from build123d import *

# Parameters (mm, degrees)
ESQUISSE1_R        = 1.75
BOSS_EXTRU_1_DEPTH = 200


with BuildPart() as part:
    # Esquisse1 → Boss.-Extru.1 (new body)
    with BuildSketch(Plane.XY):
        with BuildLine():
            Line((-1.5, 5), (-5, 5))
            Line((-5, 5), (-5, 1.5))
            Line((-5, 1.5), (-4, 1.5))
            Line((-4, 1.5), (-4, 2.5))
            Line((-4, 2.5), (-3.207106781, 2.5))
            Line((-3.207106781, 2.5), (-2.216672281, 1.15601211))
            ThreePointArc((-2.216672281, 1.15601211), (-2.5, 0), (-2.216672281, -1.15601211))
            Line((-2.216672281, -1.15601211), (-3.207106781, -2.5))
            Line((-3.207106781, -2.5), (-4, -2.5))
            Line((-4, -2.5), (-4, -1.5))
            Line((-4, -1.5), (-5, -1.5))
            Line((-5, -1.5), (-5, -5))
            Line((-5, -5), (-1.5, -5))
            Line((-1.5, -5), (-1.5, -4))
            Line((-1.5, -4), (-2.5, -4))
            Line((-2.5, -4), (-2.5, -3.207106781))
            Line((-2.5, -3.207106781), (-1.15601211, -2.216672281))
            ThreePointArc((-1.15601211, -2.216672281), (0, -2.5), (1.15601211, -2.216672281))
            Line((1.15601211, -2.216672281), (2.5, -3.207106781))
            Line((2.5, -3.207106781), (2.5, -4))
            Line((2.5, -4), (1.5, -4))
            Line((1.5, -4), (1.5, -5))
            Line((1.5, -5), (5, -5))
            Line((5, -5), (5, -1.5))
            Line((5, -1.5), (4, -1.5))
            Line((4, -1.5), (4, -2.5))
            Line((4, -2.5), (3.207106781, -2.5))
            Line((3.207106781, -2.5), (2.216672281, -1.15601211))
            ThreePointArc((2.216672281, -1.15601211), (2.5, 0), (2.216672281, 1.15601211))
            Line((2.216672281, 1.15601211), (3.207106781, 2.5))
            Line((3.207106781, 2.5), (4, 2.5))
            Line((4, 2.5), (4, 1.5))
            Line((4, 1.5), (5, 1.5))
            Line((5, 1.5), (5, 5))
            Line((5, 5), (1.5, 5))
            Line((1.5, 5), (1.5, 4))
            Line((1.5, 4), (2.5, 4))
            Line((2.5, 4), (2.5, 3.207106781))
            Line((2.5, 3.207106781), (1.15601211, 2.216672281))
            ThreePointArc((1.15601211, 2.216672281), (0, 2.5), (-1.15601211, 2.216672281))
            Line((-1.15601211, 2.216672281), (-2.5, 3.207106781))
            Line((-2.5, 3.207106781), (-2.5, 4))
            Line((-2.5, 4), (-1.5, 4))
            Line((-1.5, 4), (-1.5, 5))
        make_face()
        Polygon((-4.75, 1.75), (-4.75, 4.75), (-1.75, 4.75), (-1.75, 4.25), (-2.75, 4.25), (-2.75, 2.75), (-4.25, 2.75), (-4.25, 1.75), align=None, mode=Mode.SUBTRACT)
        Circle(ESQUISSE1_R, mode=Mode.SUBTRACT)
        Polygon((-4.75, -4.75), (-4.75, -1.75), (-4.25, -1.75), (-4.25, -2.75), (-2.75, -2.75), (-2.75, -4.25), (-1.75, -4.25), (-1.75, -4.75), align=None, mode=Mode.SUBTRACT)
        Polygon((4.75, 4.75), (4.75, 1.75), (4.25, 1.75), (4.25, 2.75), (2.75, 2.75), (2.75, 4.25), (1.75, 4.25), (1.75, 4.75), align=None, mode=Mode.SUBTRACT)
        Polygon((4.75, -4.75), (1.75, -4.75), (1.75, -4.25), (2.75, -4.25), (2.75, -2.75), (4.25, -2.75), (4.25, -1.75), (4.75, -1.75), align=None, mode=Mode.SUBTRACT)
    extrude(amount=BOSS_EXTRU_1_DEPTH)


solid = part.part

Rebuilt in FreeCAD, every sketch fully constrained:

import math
import FreeCAD as App
import Part
import Sketcher

V = App.Vector
Q = App.Units.Quantity


def add_polygon(sketch, points):
    """Adds a closed chain of lines whose ends are joined by coincident constraints."""
    first, n = sketch.GeometryCount, len(points)
    for a, b in zip(points, points[1:] + points[:1]):
        sketch.addGeometry(Part.LineSegment(App.Vector(*a, 0), App.Vector(*b, 0)), False)
    for i in range(n):
        sketch.addConstraint(Sketcher.Constraint("Coincident", first + i, 2, first + (i + 1) % n, 1))

doc = App.newDocument("Part")
body = doc.addObject("PartDesign::Body", "Body")

# Sketch on XY plane
sketch1 = doc.addObject("Sketcher::SketchObject", "Sketch")
body.addObject(sketch1)
sketch1.AttachmentSupport = (doc.XY_Plane, [""])
sketch1.MapMode = "FlatFace"
sketch1.addGeometry(Part.LineSegment(V(-1.5, 5, 0), V(-5, 5, 0)), False)  # 0
sketch1.addGeometry(Part.LineSegment(V(-5, 5, 0), V(-5, 1.5, 0)), False)  # 1
sketch1.addGeometry(Part.LineSegment(V(-5, 1.5, 0), V(-4, 1.5, 0)), False)  # 2
sketch1.addGeometry(Part.LineSegment(V(-4, 1.5, 0), V(-4, 2.5, 0)), False)  # 3
sketch1.addGeometry(Part.LineSegment(V(-4, 2.5, 0), V(-3.207107, 2.5, 0)), False)  # 4
sketch1.addGeometry(Part.LineSegment(V(-3.207107, 2.5, 0), V(-2.216672, 1.156012, 0)), False)  # 5
sketch1.addGeometry(Part.ArcOfCircle(Part.Circle(V(0, 0, 0), V(0, 0, 1), 2.5), math.radians(152.457603), math.radians(207.542397)), False)  # 6
sketch1.addGeometry(Part.LineSegment(V(-2.216672, -1.156012, 0), V(-3.207107, -2.5, 0)), False)  # 7
sketch1.addGeometry(Part.LineSegment(V(-3.207107, -2.5, 0), V(-4, -2.5, 0)), False)  # 8
sketch1.addGeometry(Part.LineSegment(V(-4, -2.5, 0), V(-4, -1.5, 0)), False)  # 9
sketch1.addGeometry(Part.LineSegment(V(-4, -1.5, 0), V(-5, -1.5, 0)), False)  # 10
sketch1.addGeometry(Part.LineSegment(V(-5, -1.5, 0), V(-5, -5, 0)), False)  # 11
sketch1.addGeometry(Part.LineSegment(V(-5, -5, 0), V(-1.5, -5, 0)), False)  # 12
sketch1.addGeometry(Part.LineSegment(V(-1.5, -5, 0), V(-1.5, -4, 0)), False)  # 13
sketch1.addGeometry(Part.LineSegment(V(-1.5, -4, 0), V(-2.5, -4, 0)), False)  # 14
sketch1.addGeometry(Part.LineSegment(V(-2.5, -4, 0), V(-2.5, -3.207107, 0)), False)  # 15
sketch1.addGeometry(Part.LineSegment(V(-2.5, -3.207107, 0), V(-1.156012, -2.216672, 0)), False)  # 16
sketch1.addGeometry(Part.ArcOfCircle(Part.Circle(V(0, 0, 0), V(0, 0, 1), 2.5), math.radians(-117.542397), math.radians(-62.457603)), False)  # 17
sketch1.addGeometry(Part.LineSegment(V(1.156012, -2.216672, 0), V(2.5, -3.207107, 0)), False)  # 18
sketch1.addGeometry(Part.LineSegment(V(2.5, -3.207107, 0), V(2.5, -4, 0)), False)  # 19
sketch1.addGeometry(Part.LineSegment(V(2.5, -4, 0), V(1.5, -4, 0)), False)  # 20
sketch1.addGeometry(Part.LineSegment(V(1.5, -4, 0), V(1.5, -5, 0)), False)  # 21
sketch1.addGeometry(Part.LineSegment(V(1.5, -5, 0), V(5, -5, 0)), False)  # 22
sketch1.addGeometry(Part.LineSegment(V(5, -5, 0), V(5, -1.5, 0)), False)  # 23
sketch1.addGeometry(Part.LineSegment(V(5, -1.5, 0), V(4, -1.5, 0)), False)  # 24
sketch1.addGeometry(Part.LineSegment(V(4, -1.5, 0), V(4, -2.5, 0)), False)  # 25
sketch1.addGeometry(Part.LineSegment(V(4, -2.5, 0), V(3.207107, -2.5, 0)), False)  # 26
sketch1.addGeometry(Part.LineSegment(V(3.207107, -2.5, 0), V(2.216672, -1.156012, 0)), False)  # 27
sketch1.addGeometry(Part.ArcOfCircle(Part.Circle(V(0, 0, 0), V(0, 0, 1), 2.5), math.radians(-27.542397), math.radians(27.542397)), False)  # 28
sketch1.addGeometry(Part.LineSegment(V(2.216672, 1.156012, 0), V(3.207107, 2.5, 0)), False)  # 29
sketch1.addGeometry(Part.LineSegment(V(3.207107, 2.5, 0), V(4, 2.5, 0)), False)  # 30
sketch1.addGeometry(Part.LineSegment(V(4, 2.5, 0), V(4, 1.5, 0)), False)  # 31
sketch1.addGeometry(Part.LineSegment(V(4, 1.5, 0), V(5, 1.5, 0)), False)  # 32
sketch1.addGeometry(Part.LineSegment(V(5, 1.5, 0), V(5, 5, 0)), False)  # 33
sketch1.addGeometry(Part.LineSegment(V(5, 5, 0), V(1.5, 5, 0)), False)  # 34
sketch1.addGeometry(Part.LineSegment(V(1.5, 5, 0), V(1.5, 4, 0)), False)  # 35
sketch1.addGeometry(Part.LineSegment(V(1.5, 4, 0), V(2.5, 4, 0)), False)  # 36
sketch1.addGeometry(Part.LineSegment(V(2.5, 4, 0), V(2.5, 3.207107, 0)), False)  # 37
sketch1.addGeometry(Part.LineSegment(V(2.5, 3.207107, 0), V(1.156012, 2.216672, 0)), False)  # 38
sketch1.addGeometry(Part.ArcOfCircle(Part.Circle(V(0, 0, 0), V(0, 0, 1), 2.5), math.radians(62.457603), math.radians(117.542397)), False)  # 39
sketch1.addGeometry(Part.LineSegment(V(-1.156012, 2.216672, 0), V(-2.5, 3.207107, 0)), False)  # 40
sketch1.addGeometry(Part.LineSegment(V(-2.5, 3.207107, 0), V(-2.5, 4, 0)), False)  # 41
sketch1.addGeometry(Part.LineSegment(V(-2.5, 4, 0), V(-1.5, 4, 0)), False)  # 42
sketch1.addGeometry(Part.LineSegment(V(-1.5, 4, 0), V(-1.5, 5, 0)), False)  # 43
add_polygon(sketch1, [(-1.75, -4.75), (-4.75, -4.75), (-4.75, -1.75), (-4.25, -1.75), (-4.25, -2.75), (-2.75, -2.75), (-2.75, -4.25), (-1.75, -4.25)])  # lines 44-51
add_polygon(sketch1, [(4.75, -1.75), (4.75, -4.75), (1.75, -4.75), (1.75, -4.25), (2.75, -4.25), (2.75, -2.75), (4.25, -2.75), (4.25, -1.75)])  # lines 52-59
add_polygon(sketch1, [(-4.25, 1.75), (-4.75, 1.75), (-4.75, 4.75), (-1.75, 4.75), (-1.75, 4.25), (-2.75, 4.25), (-2.75, 2.75), (-4.25, 2.75)])  # lines 60-67
sketch1.addGeometry(Part.Circle(V(0, 0, 0), V(0, 0, 1), 1.75), False)  # 68
add_polygon(sketch1, [(1.75, 4.75), (4.75, 4.75), (4.75, 1.75), (4.25, 1.75), (4.25, 2.75), (2.75, 2.75), (2.75, 4.25), (1.75, 4.25)])  # lines 69-76
sketch1.addConstraint([
    Sketcher.Constraint("Coincident", 0, 2, 1, 1),
    Sketcher.Constraint("Coincident", 1, 2, 2, 1),
    Sketcher.Constraint("Coincident", 2, 2, 3, 1),
    Sketcher.Constraint("Coincident", 3, 2, 4, 1),
    Sketcher.Constraint("Coincident", 4, 2, 5, 1),
    Sketcher.Constraint("Coincident", 5, 2, 6, 1),
    Sketcher.Constraint("Coincident", 6, 2, 7, 1),
    Sketcher.Constraint("Coincident", 7, 2, 8, 1),
    Sketcher.Constraint("Coincident", 8, 2, 9, 1),
    Sketcher.Constraint("Coincident", 9, 2, 10, 1),
    Sketcher.Constraint("Coincident", 10, 2, 11, 1),
    Sketcher.Constraint("Coincident", 11, 2, 12, 1),
    Sketcher.Constraint("Coincident", 12, 2, 13, 1),
    Sketcher.Constraint("Coincident", 13, 2, 14, 1),
    Sketcher.Constraint("Coincident", 14, 2, 15, 1),
    Sketcher.Constraint("Coincident", 15, 2, 16, 1),
    Sketcher.Constraint("Coincident", 16, 2, 17, 1),
    Sketcher.Constraint("Coincident", 17, 2, 18, 1),
    Sketcher.Constraint("Coincident", 18, 2, 19, 1),
    Sketcher.Constraint("Coincident", 19, 2, 20, 1),
    Sketcher.Constraint("Coincident", 20, 2, 21, 1),
    Sketcher.Constraint("Coincident", 21, 2, 22, 1),
    Sketcher.Constraint("Coincident", 22, 2, 23, 1),
    Sketcher.Constraint("Coincident", 23, 2, 24, 1),
    Sketcher.Constraint("Coincident", 24, 2, 25, 1),
    Sketcher.Constraint("Coincident", 25, 2, 26, 1),
    Sketcher.Constraint("Coincident", 26, 2, 27, 1),
    Sketcher.Constraint("Coincident", 27, 2, 28, 1),
    Sketcher.Constraint("Coincident", 28, 2, 29, 1),
    Sketcher.Constraint("Coincident", 29, 2, 30, 1),
    Sketcher.Constraint("Coincident", 30, 2, 31, 1),
    Sketcher.Constraint("Coincident", 31, 2, 32, 1),
    Sketcher.Constraint("Coincident", 32, 2, 33, 1),
    Sketcher.Constraint("Coincident", 33, 2, 34, 1),
    Sketcher.Constraint("Coincident", 34, 2, 35, 1),
    Sketcher.Constraint("Coincident", 35, 2, 36, 1),
    Sketcher.Constraint("Coincident", 36, 2, 37, 1),
    Sketcher.Constraint("Coincident", 37, 2, 38, 1),
    Sketcher.Constraint("Coincident", 38, 2, 39, 1),
    Sketcher.Constraint("Coincident", 39, 2, 40, 1),
    Sketcher.Constraint("Coincident", 40, 2, 41, 1),
    Sketcher.Constraint("Coincident", 41, 2, 42, 1),
    Sketcher.Constraint("Coincident", 42, 2, 43, 1),
    Sketcher.Constraint("Coincident", 43, 2, 0, 1),
    Sketcher.Constraint("Horizontal", 0),
    Sketcher.Constraint("Vertical", 1),
    Sketcher.Constraint("Horizontal", 2),
    Sketcher.Constraint("Vertical", 3),
    Sketcher.Constraint("Horizontal", 4),
    Sketcher.Constraint("Horizontal", 8),
    Sketcher.Constraint("Vertical", 9),
    Sketcher.Constraint("Horizontal", 10),
    Sketcher.Constraint("Vertical", 11),
    Sketcher.Constraint("Horizontal", 12),
    Sketcher.Constraint("Vertical", 13),
    Sketcher.Constraint("Horizontal", 14),
    Sketcher.Constraint("Vertical", 15),
    Sketcher.Constraint("Vertical", 19),
    Sketcher.Constraint("Horizontal", 20),
    Sketcher.Constraint("Vertical", 21),
    Sketcher.Constraint("Horizontal", 22),
    Sketcher.Constraint("Vertical", 23),
    Sketcher.Constraint("Horizontal", 24),
    Sketcher.Constraint("Vertical", 25),
    Sketcher.Constraint("Horizontal", 26),
    Sketcher.Constraint("Horizontal", 30),
    Sketcher.Constraint("Vertical", 31),
    Sketcher.Constraint("Horizontal", 32),
    Sketcher.Constraint("Vertical", 33),
    Sketcher.Constraint("Horizontal", 34),
    Sketcher.Constraint("Vertical", 35),
    Sketcher.Constraint("Horizontal", 36),
    Sketcher.Constraint("Vertical", 37),
    Sketcher.Constraint("Vertical", 41),
    Sketcher.Constraint("Horizontal", 42),
    Sketcher.Constraint("Vertical", 43),
    Sketcher.Constraint("Horizontal", 44),
    Sketcher.Constraint("Vertical", 45),
    Sketcher.Constraint("Horizontal", 46),
    Sketcher.Constraint("Vertical", 47),
    Sketcher.Constraint("Horizontal", 48),
    Sketcher.Constraint("Vertical", 49),
    Sketcher.Constraint("Horizontal", 50),
    Sketcher.Constraint("Vertical", 51),
    Sketcher.Constraint("Vertical", 52),
    Sketcher.Constraint("Horizontal", 53),
    Sketcher.Constraint("Vertical", 54),
    Sketcher.Constraint("Horizontal", 55),
    Sketcher.Constraint("Vertical", 56),
    Sketcher.Constraint("Horizontal", 57),
    Sketcher.Constraint("Vertical", 58),
    Sketcher.Constraint("Horizontal", 59),
    Sketcher.Constraint("Horizontal", 60),
    Sketcher.Constraint("Vertical", 61),
    Sketcher.Constraint("Horizontal", 62),
    Sketcher.Constraint("Vertical", 63),
    Sketcher.Constraint("Horizontal", 64),
    Sketcher.Constraint("Vertical", 65),
    Sketcher.Constraint("Horizontal", 66),
    Sketcher.Constraint("Vertical", 67),
    Sketcher.Constraint("Horizontal", 69),
    Sketcher.Constraint("Vertical", 70),
    Sketcher.Constraint("Horizontal", 71),
    Sketcher.Constraint("Vertical", 72),
    Sketcher.Constraint("Horizontal", 73),
    Sketcher.Constraint("Vertical", 74),
    Sketcher.Constraint("Horizontal", 75),
    Sketcher.Constraint("Vertical", 76),
    Sketcher.Constraint("Coincident", 6, 3, -1, 1),
    Sketcher.Constraint("Coincident", 17, 3, -1, 1),
    Sketcher.Constraint("Coincident", 28, 3, -1, 1),
    Sketcher.Constraint("Coincident", 39, 3, -1, 1),
    Sketcher.Constraint("Coincident", 68, 3, -1, 1),
    Sketcher.Constraint("Equal", 6, 17),
    Sketcher.Constraint("Equal", 17, 28),
    Sketcher.Constraint("Equal", 28, 39),
    Sketcher.Constraint("Symmetric", 0, 2, 22, 2, -1, 1),
    Sketcher.Constraint("Symmetric", 2, 2, 24, 2, -1, 1),
    Sketcher.Constraint("Symmetric", 4, 2, 26, 2, -1, 1),
    Sketcher.Constraint("Symmetric", 7, 2, 29, 2, -1, 1),
    Sketcher.Constraint("Symmetric", 9, 2, 31, 2, -1, 1),
    Sketcher.Constraint("Symmetric", 11, 2, 33, 2, -1, 1),
    Sketcher.Constraint("Symmetric", 13, 2, 35, 2, -1, 1),
    Sketcher.Constraint("Symmetric", 15, 2, 37, 2, -1, 1),
    Sketcher.Constraint("Symmetric", 18, 2, 40, 2, -1, 1),
    Sketcher.Constraint("Symmetric", 20, 2, 42, 2, -1, 1),
    Sketcher.Constraint("Symmetric", 59, 2, 60, 2, -1, 1),
    Sketcher.Constraint("Symmetric", 53, 2, 62, 2, -1, 1),
    Sketcher.Constraint("Symmetric", 55, 2, 64, 2, -1, 1),
    Sketcher.Constraint("Symmetric", 57, 2, 66, 2, -1, 1),
    Sketcher.Constraint("Symmetric", 44, 2, 69, 2, -1, 1),
    Sketcher.Constraint("Symmetric", 46, 2, 71, 2, -1, 1),
    Sketcher.Constraint("Symmetric", 48, 2, 73, 2, -1, 1),
    Sketcher.Constraint("Symmetric", 50, 2, 75, 2, -1, 1),
    Sketcher.Constraint("Symmetric", 15, 2, 18, 2, -2),
    Sketcher.Constraint("Symmetric", 13, 2, 20, 2, -2),
    Sketcher.Constraint("Symmetric", 11, 2, 22, 2, -2),
    Sketcher.Constraint("Symmetric", 9, 2, 24, 2, -2),
    Sketcher.Constraint("Symmetric", 7, 2, 26, 2, -2),
    Sketcher.Constraint("Symmetric", 44, 2, 52, 2, -2),
    Sketcher.Constraint("Symmetric", 50, 2, 54, 2, -2),
    Sketcher.Constraint("Symmetric", 48, 2, 56, 2, -2),
    Sketcher.Constraint("Symmetric", 46, 2, 58, 2, -2),
    Sketcher.Constraint("Perpendicular", 5, 16),
    Sketcher.Constraint("Perpendicular", 7, 18),
    Sketcher.Constraint("Perpendicular", 16, 27),
    Sketcher.Constraint("Perpendicular", 18, 29),
    Sketcher.Constraint("Perpendicular", 27, 38),
    Sketcher.Constraint("Perpendicular", 29, 40),
    Sketcher.Constraint("Horizontal", 16, 2, 17, 2),
    Sketcher.Constraint("Equal", 10, 14),
    Sketcher.Constraint("Equal", 42, 50),
    Sketcher.Constraint("Equal", 34, 1),
    Sketcher.Constraint("Equal", 75, 3),
    Sketcher.Constraint("Equal", 9, 13),
    Sketcher.Constraint("Equal", 30, 15),
    Sketcher.Constraint("Equal", 69, 45),
    Sketcher.Constraint("Equal", 43, 47),
    Sketcher.Constraint("Equal", 73, 49),
    Sketcher.Constraint("Equal", 7, 16),
    Sketcher.Constraint("Diameter", 68, Q("3.5 mm")),
    Sketcher.Constraint("Radius", 6, Q("2.5 mm")),
    Sketcher.Constraint("DistanceX", 2, 1, 2, 2, Q("1 mm")),
    Sketcher.Constraint("DistanceX", 44, 2, 44, 1, Q("3 mm")),
    Sketcher.Constraint("DistanceX", 0, 2, 0, 1, Q("3.5 mm")),
    Sketcher.Constraint("DistanceX", 46, 1, 46, 2, Q("0.5 mm")),
    Sketcher.Constraint("DistanceX", 0, 2, -1, 1, Q("5 mm")),
    Sketcher.Constraint("DistanceX", 44, 2, -1, 1, Q("4.75 mm")),
    Sketcher.Constraint("DistanceY", 44, 2, -1, 1, Q("4.75 mm")),
    Sketcher.Constraint("Distance", 5, Q("1.66951 mm")),
    Sketcher.Constraint("DistanceX", 4, 1, 4, 2, Q("0.792893 mm")),
])
pad1 = doc.addObject("PartDesign::Pad", "Pad")
body.addObject(pad1)
pad1.Profile = sketch1
pad1.Length = 200

doc.recompute()
